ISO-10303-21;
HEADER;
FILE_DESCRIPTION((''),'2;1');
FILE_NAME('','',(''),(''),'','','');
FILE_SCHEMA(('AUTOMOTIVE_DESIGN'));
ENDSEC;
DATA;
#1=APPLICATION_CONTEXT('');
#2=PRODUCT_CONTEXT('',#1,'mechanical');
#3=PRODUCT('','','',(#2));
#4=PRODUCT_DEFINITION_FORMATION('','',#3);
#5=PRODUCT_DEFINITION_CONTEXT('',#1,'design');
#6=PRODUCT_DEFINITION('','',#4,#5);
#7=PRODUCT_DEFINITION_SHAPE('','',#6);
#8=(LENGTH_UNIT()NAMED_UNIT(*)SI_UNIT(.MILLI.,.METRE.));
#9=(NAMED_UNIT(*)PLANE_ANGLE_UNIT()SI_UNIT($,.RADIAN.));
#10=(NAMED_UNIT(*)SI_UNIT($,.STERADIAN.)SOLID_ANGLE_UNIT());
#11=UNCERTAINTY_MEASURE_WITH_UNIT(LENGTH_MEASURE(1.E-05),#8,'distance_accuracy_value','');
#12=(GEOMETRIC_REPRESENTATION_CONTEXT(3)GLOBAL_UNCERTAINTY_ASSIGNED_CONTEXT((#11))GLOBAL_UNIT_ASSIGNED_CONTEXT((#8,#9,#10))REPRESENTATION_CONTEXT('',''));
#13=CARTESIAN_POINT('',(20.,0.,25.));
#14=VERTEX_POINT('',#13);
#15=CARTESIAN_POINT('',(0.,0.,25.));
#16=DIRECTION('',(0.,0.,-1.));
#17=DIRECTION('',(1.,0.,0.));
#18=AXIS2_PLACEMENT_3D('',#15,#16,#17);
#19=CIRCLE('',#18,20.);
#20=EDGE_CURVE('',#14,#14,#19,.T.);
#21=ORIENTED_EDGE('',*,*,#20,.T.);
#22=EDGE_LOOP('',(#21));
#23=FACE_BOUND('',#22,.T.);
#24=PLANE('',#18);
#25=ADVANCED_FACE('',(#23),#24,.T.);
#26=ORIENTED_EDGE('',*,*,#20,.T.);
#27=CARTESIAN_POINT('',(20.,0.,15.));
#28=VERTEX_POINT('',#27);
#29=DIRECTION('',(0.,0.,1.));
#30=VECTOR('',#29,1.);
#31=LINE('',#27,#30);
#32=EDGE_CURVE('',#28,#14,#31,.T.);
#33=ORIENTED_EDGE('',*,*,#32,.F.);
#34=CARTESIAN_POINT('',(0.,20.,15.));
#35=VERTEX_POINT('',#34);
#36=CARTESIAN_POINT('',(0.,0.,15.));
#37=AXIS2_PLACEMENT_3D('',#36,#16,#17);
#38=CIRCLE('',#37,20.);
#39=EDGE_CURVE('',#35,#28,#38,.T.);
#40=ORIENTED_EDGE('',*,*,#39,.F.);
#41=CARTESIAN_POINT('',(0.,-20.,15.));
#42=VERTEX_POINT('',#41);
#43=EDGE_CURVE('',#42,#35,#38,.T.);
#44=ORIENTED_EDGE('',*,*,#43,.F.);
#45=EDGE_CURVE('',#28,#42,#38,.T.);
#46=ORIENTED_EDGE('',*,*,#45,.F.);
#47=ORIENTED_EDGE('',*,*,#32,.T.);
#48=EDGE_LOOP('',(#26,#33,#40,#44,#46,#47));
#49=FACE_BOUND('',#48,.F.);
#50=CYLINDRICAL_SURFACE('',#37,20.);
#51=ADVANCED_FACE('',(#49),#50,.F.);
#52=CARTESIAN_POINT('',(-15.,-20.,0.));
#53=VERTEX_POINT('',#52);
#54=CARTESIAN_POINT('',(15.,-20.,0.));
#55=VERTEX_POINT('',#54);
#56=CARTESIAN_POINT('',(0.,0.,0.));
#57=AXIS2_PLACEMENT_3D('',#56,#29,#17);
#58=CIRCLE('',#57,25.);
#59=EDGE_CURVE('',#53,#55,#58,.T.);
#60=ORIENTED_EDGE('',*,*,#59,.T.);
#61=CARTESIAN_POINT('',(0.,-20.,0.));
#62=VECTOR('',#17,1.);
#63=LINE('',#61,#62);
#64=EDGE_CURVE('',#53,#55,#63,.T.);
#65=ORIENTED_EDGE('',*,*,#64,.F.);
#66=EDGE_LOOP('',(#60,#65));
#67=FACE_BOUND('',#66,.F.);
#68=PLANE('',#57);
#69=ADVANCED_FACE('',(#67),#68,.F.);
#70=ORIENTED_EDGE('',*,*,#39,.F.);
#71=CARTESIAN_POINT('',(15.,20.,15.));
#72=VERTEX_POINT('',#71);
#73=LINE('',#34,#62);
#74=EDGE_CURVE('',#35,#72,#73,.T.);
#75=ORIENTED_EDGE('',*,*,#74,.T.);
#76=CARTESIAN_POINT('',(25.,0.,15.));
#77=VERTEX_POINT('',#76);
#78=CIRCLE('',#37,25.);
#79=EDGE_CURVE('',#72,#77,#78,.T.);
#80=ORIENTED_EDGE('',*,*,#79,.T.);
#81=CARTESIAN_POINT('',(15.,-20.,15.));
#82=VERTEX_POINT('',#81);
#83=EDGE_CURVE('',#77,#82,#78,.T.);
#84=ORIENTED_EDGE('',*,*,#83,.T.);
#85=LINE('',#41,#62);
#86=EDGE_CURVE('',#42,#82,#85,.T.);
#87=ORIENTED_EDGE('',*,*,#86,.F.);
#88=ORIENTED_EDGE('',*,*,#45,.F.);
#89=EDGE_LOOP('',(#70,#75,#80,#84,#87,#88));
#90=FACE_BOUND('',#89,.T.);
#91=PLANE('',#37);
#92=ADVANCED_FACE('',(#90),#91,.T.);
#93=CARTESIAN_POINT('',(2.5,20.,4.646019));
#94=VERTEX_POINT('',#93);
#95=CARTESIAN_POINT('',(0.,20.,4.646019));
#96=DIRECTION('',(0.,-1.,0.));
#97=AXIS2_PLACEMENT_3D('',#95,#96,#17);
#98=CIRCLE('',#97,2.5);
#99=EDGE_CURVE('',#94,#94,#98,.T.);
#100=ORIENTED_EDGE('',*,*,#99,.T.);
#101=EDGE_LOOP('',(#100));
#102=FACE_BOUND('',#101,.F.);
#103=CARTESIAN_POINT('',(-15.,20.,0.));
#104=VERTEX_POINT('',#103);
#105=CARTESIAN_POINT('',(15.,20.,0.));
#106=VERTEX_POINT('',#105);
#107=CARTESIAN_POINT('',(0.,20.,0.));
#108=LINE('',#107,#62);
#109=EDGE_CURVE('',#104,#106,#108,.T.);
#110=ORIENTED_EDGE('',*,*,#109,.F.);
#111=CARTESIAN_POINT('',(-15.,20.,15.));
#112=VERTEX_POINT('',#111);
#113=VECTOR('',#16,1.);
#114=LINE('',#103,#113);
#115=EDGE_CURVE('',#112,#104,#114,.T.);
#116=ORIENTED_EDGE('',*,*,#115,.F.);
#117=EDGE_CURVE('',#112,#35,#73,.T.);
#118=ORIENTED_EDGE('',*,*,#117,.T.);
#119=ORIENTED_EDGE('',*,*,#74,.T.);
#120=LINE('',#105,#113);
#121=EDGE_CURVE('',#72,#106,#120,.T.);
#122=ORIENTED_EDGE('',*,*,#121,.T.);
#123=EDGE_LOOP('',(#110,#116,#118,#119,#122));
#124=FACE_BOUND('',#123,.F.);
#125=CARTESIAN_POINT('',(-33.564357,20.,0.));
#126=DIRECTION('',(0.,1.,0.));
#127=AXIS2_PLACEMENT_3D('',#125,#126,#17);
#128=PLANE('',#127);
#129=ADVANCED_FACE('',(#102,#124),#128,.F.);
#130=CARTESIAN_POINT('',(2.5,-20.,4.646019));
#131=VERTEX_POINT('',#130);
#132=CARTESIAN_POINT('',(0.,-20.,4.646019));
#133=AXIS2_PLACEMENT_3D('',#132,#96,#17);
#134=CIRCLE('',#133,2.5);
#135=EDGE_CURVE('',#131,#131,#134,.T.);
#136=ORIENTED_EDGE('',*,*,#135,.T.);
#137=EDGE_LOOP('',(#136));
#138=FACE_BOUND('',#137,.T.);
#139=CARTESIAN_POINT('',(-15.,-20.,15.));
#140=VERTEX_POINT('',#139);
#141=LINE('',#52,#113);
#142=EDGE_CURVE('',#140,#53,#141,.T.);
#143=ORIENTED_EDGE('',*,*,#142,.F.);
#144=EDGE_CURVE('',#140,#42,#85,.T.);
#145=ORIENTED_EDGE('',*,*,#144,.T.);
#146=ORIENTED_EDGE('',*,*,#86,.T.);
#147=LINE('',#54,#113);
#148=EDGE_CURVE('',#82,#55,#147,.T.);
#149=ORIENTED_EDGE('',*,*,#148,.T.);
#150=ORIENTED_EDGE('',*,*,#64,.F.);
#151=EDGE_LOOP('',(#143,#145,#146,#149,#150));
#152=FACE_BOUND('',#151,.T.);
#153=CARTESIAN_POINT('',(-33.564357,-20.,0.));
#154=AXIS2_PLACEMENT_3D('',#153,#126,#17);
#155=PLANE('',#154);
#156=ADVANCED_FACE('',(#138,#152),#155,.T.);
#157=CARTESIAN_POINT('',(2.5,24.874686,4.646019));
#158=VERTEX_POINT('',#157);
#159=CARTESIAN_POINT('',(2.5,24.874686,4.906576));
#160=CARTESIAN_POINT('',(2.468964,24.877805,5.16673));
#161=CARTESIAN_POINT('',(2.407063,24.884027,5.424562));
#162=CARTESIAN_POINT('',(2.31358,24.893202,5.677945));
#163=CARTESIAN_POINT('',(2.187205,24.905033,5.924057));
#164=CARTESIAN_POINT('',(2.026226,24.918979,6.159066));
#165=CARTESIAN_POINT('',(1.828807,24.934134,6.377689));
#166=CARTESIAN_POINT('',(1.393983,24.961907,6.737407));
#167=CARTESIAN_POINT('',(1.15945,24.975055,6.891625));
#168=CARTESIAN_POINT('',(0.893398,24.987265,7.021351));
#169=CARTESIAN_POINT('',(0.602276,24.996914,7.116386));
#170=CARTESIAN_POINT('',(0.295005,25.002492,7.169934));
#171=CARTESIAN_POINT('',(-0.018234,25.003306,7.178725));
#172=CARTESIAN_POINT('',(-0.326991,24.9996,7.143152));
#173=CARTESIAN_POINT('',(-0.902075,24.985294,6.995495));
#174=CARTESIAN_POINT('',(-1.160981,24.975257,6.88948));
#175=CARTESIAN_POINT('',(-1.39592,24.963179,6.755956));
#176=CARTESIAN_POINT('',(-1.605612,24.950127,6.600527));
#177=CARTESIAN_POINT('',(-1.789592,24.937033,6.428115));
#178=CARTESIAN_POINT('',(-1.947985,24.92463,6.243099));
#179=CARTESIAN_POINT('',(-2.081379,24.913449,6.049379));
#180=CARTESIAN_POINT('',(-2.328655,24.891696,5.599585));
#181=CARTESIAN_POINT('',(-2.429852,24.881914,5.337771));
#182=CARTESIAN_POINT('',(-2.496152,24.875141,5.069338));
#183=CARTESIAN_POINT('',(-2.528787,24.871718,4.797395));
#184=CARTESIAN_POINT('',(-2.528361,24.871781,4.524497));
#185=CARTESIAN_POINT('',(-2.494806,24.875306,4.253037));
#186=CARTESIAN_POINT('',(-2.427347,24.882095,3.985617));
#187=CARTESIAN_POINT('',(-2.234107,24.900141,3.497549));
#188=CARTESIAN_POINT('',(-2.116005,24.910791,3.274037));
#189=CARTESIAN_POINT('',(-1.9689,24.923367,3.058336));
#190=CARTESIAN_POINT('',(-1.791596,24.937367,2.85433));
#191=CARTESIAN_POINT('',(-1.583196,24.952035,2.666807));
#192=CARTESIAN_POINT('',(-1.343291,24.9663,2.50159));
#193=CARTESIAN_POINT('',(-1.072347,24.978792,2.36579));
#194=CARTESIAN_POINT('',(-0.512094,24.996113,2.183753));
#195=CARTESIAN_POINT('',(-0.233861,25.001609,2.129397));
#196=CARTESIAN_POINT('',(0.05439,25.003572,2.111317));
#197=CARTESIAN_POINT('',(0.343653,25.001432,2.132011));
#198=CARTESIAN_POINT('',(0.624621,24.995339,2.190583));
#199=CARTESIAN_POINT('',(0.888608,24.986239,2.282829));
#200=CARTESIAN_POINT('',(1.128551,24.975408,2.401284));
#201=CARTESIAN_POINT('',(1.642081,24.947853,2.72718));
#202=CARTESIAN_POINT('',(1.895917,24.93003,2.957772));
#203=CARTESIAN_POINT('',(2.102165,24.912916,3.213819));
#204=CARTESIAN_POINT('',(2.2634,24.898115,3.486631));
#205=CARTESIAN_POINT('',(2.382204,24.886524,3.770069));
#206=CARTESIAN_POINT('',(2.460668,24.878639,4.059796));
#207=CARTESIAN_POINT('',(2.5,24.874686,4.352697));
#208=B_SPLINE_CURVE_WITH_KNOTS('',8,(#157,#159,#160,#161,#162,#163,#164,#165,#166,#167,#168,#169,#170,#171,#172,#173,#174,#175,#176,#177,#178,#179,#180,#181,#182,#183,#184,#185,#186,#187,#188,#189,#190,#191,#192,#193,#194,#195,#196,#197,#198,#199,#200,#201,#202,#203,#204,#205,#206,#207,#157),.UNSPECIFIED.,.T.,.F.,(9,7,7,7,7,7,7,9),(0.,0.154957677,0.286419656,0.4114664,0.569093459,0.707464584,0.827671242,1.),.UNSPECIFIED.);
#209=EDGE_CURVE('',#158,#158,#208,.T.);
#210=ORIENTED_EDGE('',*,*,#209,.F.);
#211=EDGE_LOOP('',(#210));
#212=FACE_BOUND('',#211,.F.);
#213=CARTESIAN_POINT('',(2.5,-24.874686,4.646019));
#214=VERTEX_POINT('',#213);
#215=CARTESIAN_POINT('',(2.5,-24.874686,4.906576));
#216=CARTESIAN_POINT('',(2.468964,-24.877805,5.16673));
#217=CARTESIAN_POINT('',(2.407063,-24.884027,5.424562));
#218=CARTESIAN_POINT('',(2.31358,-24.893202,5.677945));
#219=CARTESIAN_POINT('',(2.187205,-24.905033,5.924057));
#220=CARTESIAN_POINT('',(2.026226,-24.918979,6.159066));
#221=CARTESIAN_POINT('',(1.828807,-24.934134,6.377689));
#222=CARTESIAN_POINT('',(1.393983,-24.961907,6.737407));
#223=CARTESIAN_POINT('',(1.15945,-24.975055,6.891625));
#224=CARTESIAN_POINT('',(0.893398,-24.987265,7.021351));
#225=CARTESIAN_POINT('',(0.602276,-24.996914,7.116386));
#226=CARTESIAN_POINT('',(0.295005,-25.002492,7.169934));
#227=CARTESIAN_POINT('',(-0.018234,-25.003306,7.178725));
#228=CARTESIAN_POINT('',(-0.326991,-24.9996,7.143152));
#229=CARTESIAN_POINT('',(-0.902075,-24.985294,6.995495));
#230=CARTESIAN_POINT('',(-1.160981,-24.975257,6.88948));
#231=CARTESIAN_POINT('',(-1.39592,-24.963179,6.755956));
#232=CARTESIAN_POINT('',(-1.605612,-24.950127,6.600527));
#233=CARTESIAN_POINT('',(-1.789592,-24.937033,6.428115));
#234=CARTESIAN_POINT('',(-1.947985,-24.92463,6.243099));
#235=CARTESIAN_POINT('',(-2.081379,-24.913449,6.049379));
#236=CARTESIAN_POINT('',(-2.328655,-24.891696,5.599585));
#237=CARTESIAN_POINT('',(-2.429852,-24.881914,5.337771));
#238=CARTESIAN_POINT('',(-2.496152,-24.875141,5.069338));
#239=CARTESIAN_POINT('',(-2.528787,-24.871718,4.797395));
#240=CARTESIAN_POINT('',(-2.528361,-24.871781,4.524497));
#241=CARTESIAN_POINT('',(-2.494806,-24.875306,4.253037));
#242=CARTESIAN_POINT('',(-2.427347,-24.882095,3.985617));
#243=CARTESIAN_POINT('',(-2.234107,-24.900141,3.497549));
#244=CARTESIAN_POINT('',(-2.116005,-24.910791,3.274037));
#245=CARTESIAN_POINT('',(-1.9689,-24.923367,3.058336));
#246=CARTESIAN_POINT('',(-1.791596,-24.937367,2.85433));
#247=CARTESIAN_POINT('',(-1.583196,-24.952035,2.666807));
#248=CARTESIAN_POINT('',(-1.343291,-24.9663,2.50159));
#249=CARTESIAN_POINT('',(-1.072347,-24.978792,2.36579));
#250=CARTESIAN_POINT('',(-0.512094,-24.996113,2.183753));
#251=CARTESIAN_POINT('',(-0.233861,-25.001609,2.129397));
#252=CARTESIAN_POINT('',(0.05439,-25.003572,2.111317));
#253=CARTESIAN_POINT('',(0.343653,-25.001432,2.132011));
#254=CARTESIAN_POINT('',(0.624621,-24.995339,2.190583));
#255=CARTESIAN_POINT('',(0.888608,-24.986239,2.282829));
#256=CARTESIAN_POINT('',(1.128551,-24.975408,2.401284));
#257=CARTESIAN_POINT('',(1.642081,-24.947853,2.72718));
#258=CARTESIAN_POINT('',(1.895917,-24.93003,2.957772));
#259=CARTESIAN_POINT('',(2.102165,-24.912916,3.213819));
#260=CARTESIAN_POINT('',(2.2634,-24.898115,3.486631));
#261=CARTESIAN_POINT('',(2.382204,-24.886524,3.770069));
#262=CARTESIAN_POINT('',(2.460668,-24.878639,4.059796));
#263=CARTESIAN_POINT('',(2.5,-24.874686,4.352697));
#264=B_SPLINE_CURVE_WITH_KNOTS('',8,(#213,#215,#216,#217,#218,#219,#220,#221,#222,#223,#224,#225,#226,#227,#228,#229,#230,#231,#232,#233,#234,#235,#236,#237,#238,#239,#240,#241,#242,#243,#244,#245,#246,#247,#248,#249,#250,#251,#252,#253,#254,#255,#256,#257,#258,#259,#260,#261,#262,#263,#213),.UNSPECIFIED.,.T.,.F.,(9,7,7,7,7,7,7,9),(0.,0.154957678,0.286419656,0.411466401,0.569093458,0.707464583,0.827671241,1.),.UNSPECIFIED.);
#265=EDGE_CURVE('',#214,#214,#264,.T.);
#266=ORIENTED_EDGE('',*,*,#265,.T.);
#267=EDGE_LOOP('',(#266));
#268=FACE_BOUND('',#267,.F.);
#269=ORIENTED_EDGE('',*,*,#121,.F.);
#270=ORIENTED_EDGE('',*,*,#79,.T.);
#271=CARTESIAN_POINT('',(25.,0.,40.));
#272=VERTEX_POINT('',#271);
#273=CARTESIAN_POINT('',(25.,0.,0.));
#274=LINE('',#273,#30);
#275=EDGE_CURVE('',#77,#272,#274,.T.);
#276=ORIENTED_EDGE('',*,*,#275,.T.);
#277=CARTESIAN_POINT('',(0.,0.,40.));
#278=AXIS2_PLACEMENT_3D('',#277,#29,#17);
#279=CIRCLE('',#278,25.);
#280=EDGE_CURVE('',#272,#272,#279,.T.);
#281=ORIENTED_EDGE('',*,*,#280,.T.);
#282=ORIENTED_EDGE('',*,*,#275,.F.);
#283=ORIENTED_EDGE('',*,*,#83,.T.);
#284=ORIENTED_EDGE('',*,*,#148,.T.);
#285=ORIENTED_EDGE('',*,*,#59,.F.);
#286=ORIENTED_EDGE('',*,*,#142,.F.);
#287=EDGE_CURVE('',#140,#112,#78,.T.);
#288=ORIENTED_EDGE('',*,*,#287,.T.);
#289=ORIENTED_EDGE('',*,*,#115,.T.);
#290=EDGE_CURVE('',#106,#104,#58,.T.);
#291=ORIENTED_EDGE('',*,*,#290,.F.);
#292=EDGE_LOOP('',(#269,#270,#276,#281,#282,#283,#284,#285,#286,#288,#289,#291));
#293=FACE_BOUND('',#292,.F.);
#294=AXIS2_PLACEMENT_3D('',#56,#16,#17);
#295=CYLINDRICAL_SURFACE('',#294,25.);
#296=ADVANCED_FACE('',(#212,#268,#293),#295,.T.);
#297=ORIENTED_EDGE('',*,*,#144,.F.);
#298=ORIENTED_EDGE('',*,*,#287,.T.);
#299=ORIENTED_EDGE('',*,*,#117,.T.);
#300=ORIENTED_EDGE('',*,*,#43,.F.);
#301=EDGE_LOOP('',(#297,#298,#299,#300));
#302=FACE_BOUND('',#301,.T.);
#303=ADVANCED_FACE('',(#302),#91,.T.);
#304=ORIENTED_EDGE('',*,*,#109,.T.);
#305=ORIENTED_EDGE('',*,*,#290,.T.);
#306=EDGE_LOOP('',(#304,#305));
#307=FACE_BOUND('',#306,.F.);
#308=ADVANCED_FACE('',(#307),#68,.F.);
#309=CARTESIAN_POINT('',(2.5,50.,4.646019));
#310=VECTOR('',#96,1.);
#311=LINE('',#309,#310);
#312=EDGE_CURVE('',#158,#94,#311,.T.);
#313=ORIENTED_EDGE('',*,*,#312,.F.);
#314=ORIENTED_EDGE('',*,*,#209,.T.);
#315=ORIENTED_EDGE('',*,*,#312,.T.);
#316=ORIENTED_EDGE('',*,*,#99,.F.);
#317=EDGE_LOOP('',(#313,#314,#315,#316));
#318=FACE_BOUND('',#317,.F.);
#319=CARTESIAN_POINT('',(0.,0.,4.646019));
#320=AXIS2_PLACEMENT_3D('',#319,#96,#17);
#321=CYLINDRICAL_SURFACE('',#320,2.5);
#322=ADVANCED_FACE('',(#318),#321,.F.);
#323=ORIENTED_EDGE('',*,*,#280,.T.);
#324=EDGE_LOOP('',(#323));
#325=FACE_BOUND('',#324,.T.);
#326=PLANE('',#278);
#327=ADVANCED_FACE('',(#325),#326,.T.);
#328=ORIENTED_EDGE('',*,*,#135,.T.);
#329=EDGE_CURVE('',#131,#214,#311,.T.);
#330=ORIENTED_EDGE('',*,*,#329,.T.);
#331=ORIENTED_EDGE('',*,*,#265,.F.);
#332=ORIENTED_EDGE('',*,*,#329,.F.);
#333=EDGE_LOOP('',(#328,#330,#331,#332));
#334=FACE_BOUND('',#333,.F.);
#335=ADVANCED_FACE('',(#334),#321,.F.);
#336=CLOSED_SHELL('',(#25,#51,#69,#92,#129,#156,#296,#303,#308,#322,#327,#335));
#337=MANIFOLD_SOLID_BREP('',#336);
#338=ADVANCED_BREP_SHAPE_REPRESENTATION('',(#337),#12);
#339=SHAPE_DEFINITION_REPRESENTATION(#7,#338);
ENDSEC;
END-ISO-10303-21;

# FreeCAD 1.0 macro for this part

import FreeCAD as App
import Part
import Sketcher
from FreeCAD import Vector
Q = App.Units.Quantity

doc = App.newDocument("Part")
params = doc.addObject("Spreadsheet::Sheet", "Params")
for row, (alias, value) in enumerate([
    ("sketch1_diameter", "50 mm"),
    ("pad1_length", "40 mm"),
    ("sketch2_height", "40 mm"),
    ("pocket1_length", "15 mm"),
    ("sketch3_diameter", "40 mm"),
    ("pocket2_length", "10 mm"),
    ("sketch4_diameter", "5 mm"),
    ("pocket3_length", "100 mm"),
], start=1):
    params.set(f"A{row}", alias)
    params.set(f"B{row}", "=" + value)
    params.setAlias(f"B{row}", alias)

body = doc.addObject("PartDesign::Body", "Body")

# Sketch on XY plane
sketch1 = doc.addObject("Sketcher::SketchObject", "Sketch")
body.addObject(sketch1)
sketch1.AttachmentSupport = (doc.XY_Plane, [""])
sketch1.MapMode = "FlatFace"
sketch1.addGeometry(Part.Circle(Vector(0, 0, 0), Vector(0, 0, 1), 25), False)
sketch1.addConstraint(Sketcher.Constraint("Coincident", 0, 3, -1, 1))
sketch1.addConstraint(Sketcher.Constraint("Diameter", 0, Q("50 mm")))
sketch1.setExpression("Constraints[1]", "Params.sketch1_diameter")
pad1 = doc.addObject("PartDesign::Pad", "Pad")
body.addObject(pad1)
pad1.Profile = sketch1
pad1.setExpression("Length", "Params.pad1_length")

# Sketch on XY plane
sketch2 = doc.addObject("Sketcher::SketchObject", "Sketch001")
body.addObject(sketch2)
sketch2.AttachmentSupport = (doc.XY_Plane, [""])
sketch2.MapMode = "FlatFace"
sketch2.addGeometry(Part.LineSegment(Vector(-34, -20, 0), Vector(-34, 20, 0)), False)
sketch2.addGeometry(Part.LineSegment(Vector(-34, 20, 0), Vector(34, 20, 0)), False)
sketch2.addGeometry(Part.LineSegment(Vector(34, 20, 0), Vector(34, -20, 0)), False)
sketch2.addGeometry(Part.LineSegment(Vector(34, -20, 0), Vector(-34, -20, 0)), False)
sketch2.addConstraint(Sketcher.Constraint("Coincident", 0, 2, 1, 1))
sketch2.addConstraint(Sketcher.Constraint("Coincident", 1, 2, 2, 1))
sketch2.addConstraint(Sketcher.Constraint("Coincident", 2, 2, 3, 1))
sketch2.addConstraint(Sketcher.Constraint("Coincident", 3, 2, 0, 1))
sketch2.addConstraint(Sketcher.Constraint("Vertical", 0))
sketch2.addConstraint(Sketcher.Constraint("Horizontal", 1))
sketch2.addConstraint(Sketcher.Constraint("Vertical", 2))
sketch2.addConstraint(Sketcher.Constraint("Horizontal", 3))
sketch2.addConstraint(Sketcher.Constraint("Symmetric", 0, 2, 2, 2, -1, 1))
sketch2.addConstraint(Sketcher.Constraint("DistanceY", 0, 1, 0, 2, Q("40 mm")))
sketch2.addConstraint(Sketcher.Constraint("DistanceX", 1, 1, 1, 2, Q("67.128714 mm")))
sketch2.setExpression("Constraints[9]", "Params.sketch2_height")
pocket1 = doc.addObject("PartDesign::Pocket", "Pocket")
body.addObject(pocket1)
pocket1.Profile = sketch2
pocket1.setExpression("Length", "Params.pocket1_length")
pocket1.Reversed = True

# Sketch on XY plane
sketch3 = doc.addObject("Sketcher::SketchObject", "Sketch002")
body.addObject(sketch3)
sketch3.AttachmentSupport = (doc.XY_Plane, [""])
sketch3.MapMode = "FlatFace"
sketch3.AttachmentOffset = App.Placement(Vector(0, 0, 15), App.Rotation())
sketch3.addGeometry(Part.Circle(Vector(0, 0, 0), Vector(0, 0, 1), 20), False)
sketch3.addConstraint(Sketcher.Constraint("Coincident", 0, 3, -1, 1))
sketch3.addConstraint(Sketcher.Constraint("Diameter", 0, Q("40 mm")))
sketch3.setExpression("Constraints[1]", "Params.sketch3_diameter")
pocket2 = doc.addObject("PartDesign::Pocket", "Pocket001")
body.addObject(pocket2)
pocket2.Profile = sketch3
pocket2.setExpression("Length", "Params.pocket2_length")
pocket2.Reversed = True

# Sketch on XZ plane
sketch4 = doc.addObject("Sketcher::SketchObject", "Sketch003")
body.addObject(sketch4)
sketch4.AttachmentSupport = (doc.XZ_Plane, [""])
sketch4.MapMode = "FlatFace"
sketch4.addGeometry(Part.Circle(Vector(0, 4.6, 0), Vector(0, 0, 1), 2.5), False)
sketch4.addConstraint(Sketcher.Constraint("PointOnObject", 0, 3, -2))
sketch4.addConstraint(Sketcher.Constraint("Diameter", 0, Q("5 mm")))
sketch4.addConstraint(Sketcher.Constraint("DistanceY", -1, 1, 0, 3, Q("4.646019 mm")))
sketch4.setExpression("Constraints[1]", "Params.sketch4_diameter")
pocket3 = doc.addObject("PartDesign::Pocket", "Pocket002")
body.addObject(pocket3)
pocket3.Profile = sketch4
pocket3.setExpression("Length", "Params.pocket3_length")
pocket3.Midplane = True

doc.recompute()
